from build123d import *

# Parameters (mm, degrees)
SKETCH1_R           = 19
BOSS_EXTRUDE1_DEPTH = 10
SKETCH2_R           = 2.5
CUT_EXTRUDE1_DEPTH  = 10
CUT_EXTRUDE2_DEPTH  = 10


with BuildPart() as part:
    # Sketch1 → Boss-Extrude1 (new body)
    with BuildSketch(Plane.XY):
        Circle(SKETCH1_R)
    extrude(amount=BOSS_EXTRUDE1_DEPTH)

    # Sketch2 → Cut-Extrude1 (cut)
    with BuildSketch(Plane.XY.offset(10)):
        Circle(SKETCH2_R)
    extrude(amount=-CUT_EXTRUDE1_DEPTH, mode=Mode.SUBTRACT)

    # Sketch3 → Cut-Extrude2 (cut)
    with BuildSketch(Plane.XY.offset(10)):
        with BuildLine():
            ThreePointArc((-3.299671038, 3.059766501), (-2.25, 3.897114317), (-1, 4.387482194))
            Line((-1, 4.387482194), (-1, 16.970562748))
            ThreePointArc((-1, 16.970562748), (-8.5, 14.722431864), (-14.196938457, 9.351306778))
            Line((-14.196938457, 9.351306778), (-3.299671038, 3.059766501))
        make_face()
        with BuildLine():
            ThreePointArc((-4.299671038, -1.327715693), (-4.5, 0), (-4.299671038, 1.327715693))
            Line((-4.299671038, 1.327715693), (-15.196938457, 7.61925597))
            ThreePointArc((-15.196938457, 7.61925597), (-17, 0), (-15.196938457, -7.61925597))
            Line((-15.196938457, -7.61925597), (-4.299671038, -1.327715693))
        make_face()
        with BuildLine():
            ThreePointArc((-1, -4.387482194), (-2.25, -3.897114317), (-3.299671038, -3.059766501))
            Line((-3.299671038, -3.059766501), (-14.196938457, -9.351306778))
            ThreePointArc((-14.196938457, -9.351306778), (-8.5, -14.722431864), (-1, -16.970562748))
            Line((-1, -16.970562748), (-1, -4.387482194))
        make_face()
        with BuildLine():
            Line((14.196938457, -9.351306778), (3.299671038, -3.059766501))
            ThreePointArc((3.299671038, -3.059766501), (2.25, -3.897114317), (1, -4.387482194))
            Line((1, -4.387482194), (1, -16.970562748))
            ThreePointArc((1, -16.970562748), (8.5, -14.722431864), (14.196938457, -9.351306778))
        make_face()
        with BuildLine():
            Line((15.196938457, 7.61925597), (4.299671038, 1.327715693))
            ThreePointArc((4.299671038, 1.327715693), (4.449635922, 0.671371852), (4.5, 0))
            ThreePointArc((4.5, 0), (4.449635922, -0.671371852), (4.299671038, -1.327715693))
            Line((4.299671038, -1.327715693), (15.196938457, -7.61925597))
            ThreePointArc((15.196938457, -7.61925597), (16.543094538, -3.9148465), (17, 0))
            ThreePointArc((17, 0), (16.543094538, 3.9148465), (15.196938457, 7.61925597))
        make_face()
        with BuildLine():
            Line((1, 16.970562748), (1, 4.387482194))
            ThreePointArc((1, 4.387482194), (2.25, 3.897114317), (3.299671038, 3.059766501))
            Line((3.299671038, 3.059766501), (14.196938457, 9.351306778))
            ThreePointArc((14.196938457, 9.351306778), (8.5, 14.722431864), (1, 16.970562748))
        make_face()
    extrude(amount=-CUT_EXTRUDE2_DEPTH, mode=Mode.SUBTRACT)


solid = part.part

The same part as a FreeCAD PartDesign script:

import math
import FreeCAD as App
import Part
import Sketcher
from FreeCAD import Vector
Q = App.Units.Quantity

doc = App.newDocument("Part")
body = doc.addObject("PartDesign::Body", "Body")

sketch1 = body.newObject("Sketcher::SketchObject", "Sketch")
sketch1.AttachmentSupport = (doc.getObject("XY_Plane"), [""])
sketch1.MapMode = "FlatFace"
sketch1.addGeometry(Part.Circle(Vector(0, 0, 0), Vector(0, 0, 1), 19), False)
sketch1.addConstraint([
    Sketcher.Constraint("Coincident", 0, 3, -1, 1),
    Sketcher.Constraint("Diameter", 0, 38.0),
])
pad1 = body.newObject("PartDesign::Pad", "Pad")
pad1.Profile = sketch1
pad1.Length = 10

sketch2 = body.newObject("Sketcher::SketchObject", "Sketch001")
sketch2.AttachmentSupport = (doc.getObject("XY_Plane"), [""])
sketch2.MapMode = "FlatFace"
sketch2.AttachmentOffset = App.Placement(Vector(0, 0, 10), App.Rotation())
sketch2.addGeometry(Part.Circle(Vector(0, 0, 0), Vector(0, 0, 1), 2.5), False)
sketch2.addConstraint([
    Sketcher.Constraint("Coincident", 0, 3, -1, 1),
    Sketcher.Constraint("Diameter", 0, 5.0),
])
pocket1 = body.newObject("PartDesign::Pocket", "Pocket")
pocket1.Profile = sketch2
pocket1.Length = 10

sketch3 = body.newObject("Sketcher::SketchObject", "Sketch002")
sketch3.AttachmentSupport = (doc.getObject("XY_Plane"), [""])
sketch3.MapMode = "FlatFace"
sketch3.AttachmentOffset = App.Placement(Vector(0, 0, 10), App.Rotation())
sketch3.addGeometry([
    Part.ArcOfCircle(Part.Circle(Vector(0, 0, 0), Vector(0, 0, 1), 4.5), math.radians(102.839588), math.radians(137.160412)),
    Part.LineSegment(Vector(-1, 4.387482, 0), Vector(-1, 16.970563, 0)),
    Part.ArcOfCircle(Part.Circle(Vector(0, 0, 0), Vector(0, 0, 1), 17), math.radians(93.372287), math.radians(146.627713)),
    Part.LineSegment(Vector(-14.196938, 9.351307, 0), Vector(-3.299671, 3.059767, 0)),
    Part.ArcOfCircle(Part.Circle(Vector(0, 0, 0), Vector(0, 0, 1), 4.5), math.radians(162.839588), math.radians(197.160412)),
    Part.LineSegment(Vector(-4.299671, 1.327716, 0), Vector(-15.196938, 7.619256, 0)),
    Part.ArcOfCircle(Part.Circle(Vector(0, 0, 0), Vector(0, 0, 1), 17), math.radians(153.372287), math.radians(206.627713)),
    Part.LineSegment(Vector(-15.196938, -7.619256, 0), Vector(-4.299671, -1.327716, 0)),
    Part.ArcOfCircle(Part.Circle(Vector(0, 0, 0), Vector(0, 0, 1), 4.5), math.radians(-137.160412), math.radians(-102.839588)),
    Part.LineSegment(Vector(-3.299671, -3.059767, 0), Vector(-14.196938, -9.351307, 0)),
    Part.ArcOfCircle(Part.Circle(Vector(0, 0, 0), Vector(0, 0, 1), 17), math.radians(-146.627713), math.radians(-93.372287)),
    Part.LineSegment(Vector(-1, -16.970563, 0), Vector(-1, -4.387482, 0)),
    Part.LineSegment(Vector(14.196938, -9.351307, 0), Vector(3.299671, -3.059767, 0)),
    Part.ArcOfCircle(Part.Circle(Vector(0, 0, 0), Vector(0, 0, 1), 4.5), math.radians(-77.160412), math.radians(-42.839588)),
    Part.LineSegment(Vector(1, -4.387482, 0), Vector(1, -16.970563, 0)),
    Part.ArcOfCircle(Part.Circle(Vector(0, 0, 0), Vector(0, 0, 1), 17), math.radians(-86.627713), math.radians(-33.372287)),
    Part.LineSegment(Vector(15.196938, 7.619256, 0), Vector(4.299671, 1.327716, 0)),
    Part.ArcOfCircle(Part.Circle(Vector(0, 0, 0), Vector(0, 0, 1), 4.5), math.radians(0), math.radians(17.160412)),
    Part.ArcOfCircle(Part.Circle(Vector(0, 0, 0), Vector(0, 0, 1), 4.5), math.radians(-17.160412), math.radians(0)),
    Part.LineSegment(Vector(4.299671, -1.327716, 0), Vector(15.196938, -7.619256, 0)),
    Part.ArcOfCircle(Part.Circle(Vector(0, 0, 0), Vector(0, 0, 1), 17), math.radians(-26.627713), math.radians(0)),
    Part.ArcOfCircle(Part.Circle(Vector(0, 0, 0), Vector(0, 0, 1), 17), math.radians(0), math.radians(26.627713)),
    Part.LineSegment(Vector(1, 16.970563, 0), Vector(1, 4.387482, 0)),
    Part.ArcOfCircle(Part.Circle(Vector(0, 0, 0), Vector(0, 0, 1), 4.5), math.radians(42.839588), math.radians(77.160412)),
    Part.LineSegment(Vector(3.299671, 3.059767, 0), Vector(14.196938, 9.351307, 0)),
    Part.ArcOfCircle(Part.Circle(Vector(0, 0, 0), Vector(0, 0, 1), 17), math.radians(33.372287), math.radians(86.627713)),
], False)
sketch3.addConstraint([
    Sketcher.Constraint("Coincident", 0, 1, 1, 1),
    Sketcher.Constraint("Coincident", 1, 2, 2, 1),
    Sketcher.Constraint("Coincident", 2, 2, 3, 1),
    Sketcher.Constraint("Coincident", 3, 2, 0, 2),
    Sketcher.Constraint("Coincident", 4, 1, 5, 1),
    Sketcher.Constraint("Coincident", 5, 2, 6, 1),
    Sketcher.Constraint("Coincident", 6, 2, 7, 1),
    Sketcher.Constraint("Coincident", 7, 2, 4, 2),
    Sketcher.Constraint("Coincident", 8, 1, 9, 1),
    Sketcher.Constraint("Coincident", 9, 2, 10, 1),
    Sketcher.Constraint("Coincident", 10, 2, 11, 1),
    Sketcher.Constraint("Coincident", 11, 2, 8, 2),
    Sketcher.Constraint("Coincident", 12, 2, 13, 2),
    Sketcher.Constraint("Coincident", 13, 1, 14, 1),
    Sketcher.Constraint("Coincident", 14, 2, 15, 1),
    Sketcher.Constraint("Coincident", 15, 2, 12, 1),
    Sketcher.Constraint("Coincident", 16, 2, 17, 2),
    Sketcher.Constraint("Tangent", 17, 1, 18, 2),
    Sketcher.Constraint("Coincident", 18, 1, 19, 1),
    Sketcher.Constraint("Coincident", 19, 2, 20, 1),
    Sketcher.Constraint("Tangent", 20, 2, 21, 1),
    Sketcher.Constraint("Coincident", 21, 2, 16, 1),
    Sketcher.Constraint("Coincident", 22, 2, 23, 2),
    Sketcher.Constraint("Coincident", 23, 1, 24, 1),
    Sketcher.Constraint("Coincident", 24, 2, 25, 1),
    Sketcher.Constraint("Coincident", 25, 2, 22, 1),
    Sketcher.Constraint("Vertical", 1),
    Sketcher.Constraint("Vertical", 11),
    Sketcher.Constraint("Vertical", 14),
    Sketcher.Constraint("Vertical", 22),
    Sketcher.Constraint("Coincident", 0, 3, -1, 1),
    Sketcher.Constraint("Coincident", 2, 3, -1, 1),
    Sketcher.Constraint("Coincident", 4, 3, -1, 1),
    Sketcher.Constraint("Coincident", 6, 3, -1, 1),
    Sketcher.Constraint("Coincident", 8, 3, -1, 1),
    Sketcher.Constraint("Coincident", 10, 3, -1, 1),
    Sketcher.Constraint("Coincident", 13, 3, -1, 1),
    Sketcher.Constraint("Coincident", 15, 3, -1, 1),
    Sketcher.Constraint("Coincident", 17, 3, -1, 1),
    Sketcher.Constraint("Coincident", 20, 3, -1, 1),
    Sketcher.Constraint("Coincident", 23, 3, -1, 1),
    Sketcher.Constraint("Coincident", 25, 3, -1, 1),
    Sketcher.Constraint("Equal", 0, 4),
    Sketcher.Constraint("Equal", 2, 6),
    Sketcher.Constraint("Equal", 4, 8),
    Sketcher.Constraint("Equal", 6, 10),
    Sketcher.Constraint("Equal", 8, 13),
    Sketcher.Constraint("Equal", 10, 15),
    Sketcher.Constraint("Equal", 13, 17),
    Sketcher.Constraint("Equal", 17, 18),
    Sketcher.Constraint("Equal", 15, 20),
    Sketcher.Constraint("Equal", 20, 21),
    Sketcher.Constraint("Equal", 18, 23),
    Sketcher.Constraint("Equal", 21, 25),
    Sketcher.Constraint("PointOnObject", 17, 1, -1),
    Sketcher.Constraint("PointOnObject", 20, 2, -1),
    Sketcher.Constraint("Parallel", 3, 5),
    Sketcher.Constraint("Parallel", 7, 9),
    Sketcher.Constraint("Parallel", 5, 12),
    Sketcher.Constraint("Parallel", 9, 16),
    Sketcher.Constraint("Parallel", 12, 19),
    Sketcher.Constraint("Parallel", 16, 24),
    Sketcher.Constraint("Horizontal", 8, 1, 12, 2),
    Sketcher.Constraint("Horizontal", 11, 2, 13, 1),
    Sketcher.Constraint("Horizontal", 9, 2, 15, 2),
    Sketcher.Constraint("Horizontal", 4, 1, 16, 2),
    Sketcher.Constraint("Horizontal", 7, 2, 18, 1),
    Sketcher.Constraint("Horizontal", 0, 1, 22, 2),
    Sketcher.Constraint("Horizontal", 3, 2, 23, 1),
    Sketcher.Constraint("Vertical", 5, 2, 6, 2),
    Sketcher.Constraint("Vertical", 3, 2, 8, 1),
    Sketcher.Constraint("Vertical", 1, 2, 10, 2),
    Sketcher.Constraint("Equal", 3, 5),
    Sketcher.Constraint("Radius", 2, 17.0),
    Sketcher.Constraint("Radius", 0, 4.5),
    Sketcher.Constraint("Angle", 3, Q("-30 deg")),
    Sketcher.Constraint("DistanceX", 0, 1, -1, 1, 1.0),
    Sketcher.Constraint("DistanceX", 4, 1, 3, 2, 1.0),
])
pocket2 = body.newObject("PartDesign::Pocket", "Pocket001")
pocket2.Profile = sketch3
pocket2.Length = 10

doc.recompute()
